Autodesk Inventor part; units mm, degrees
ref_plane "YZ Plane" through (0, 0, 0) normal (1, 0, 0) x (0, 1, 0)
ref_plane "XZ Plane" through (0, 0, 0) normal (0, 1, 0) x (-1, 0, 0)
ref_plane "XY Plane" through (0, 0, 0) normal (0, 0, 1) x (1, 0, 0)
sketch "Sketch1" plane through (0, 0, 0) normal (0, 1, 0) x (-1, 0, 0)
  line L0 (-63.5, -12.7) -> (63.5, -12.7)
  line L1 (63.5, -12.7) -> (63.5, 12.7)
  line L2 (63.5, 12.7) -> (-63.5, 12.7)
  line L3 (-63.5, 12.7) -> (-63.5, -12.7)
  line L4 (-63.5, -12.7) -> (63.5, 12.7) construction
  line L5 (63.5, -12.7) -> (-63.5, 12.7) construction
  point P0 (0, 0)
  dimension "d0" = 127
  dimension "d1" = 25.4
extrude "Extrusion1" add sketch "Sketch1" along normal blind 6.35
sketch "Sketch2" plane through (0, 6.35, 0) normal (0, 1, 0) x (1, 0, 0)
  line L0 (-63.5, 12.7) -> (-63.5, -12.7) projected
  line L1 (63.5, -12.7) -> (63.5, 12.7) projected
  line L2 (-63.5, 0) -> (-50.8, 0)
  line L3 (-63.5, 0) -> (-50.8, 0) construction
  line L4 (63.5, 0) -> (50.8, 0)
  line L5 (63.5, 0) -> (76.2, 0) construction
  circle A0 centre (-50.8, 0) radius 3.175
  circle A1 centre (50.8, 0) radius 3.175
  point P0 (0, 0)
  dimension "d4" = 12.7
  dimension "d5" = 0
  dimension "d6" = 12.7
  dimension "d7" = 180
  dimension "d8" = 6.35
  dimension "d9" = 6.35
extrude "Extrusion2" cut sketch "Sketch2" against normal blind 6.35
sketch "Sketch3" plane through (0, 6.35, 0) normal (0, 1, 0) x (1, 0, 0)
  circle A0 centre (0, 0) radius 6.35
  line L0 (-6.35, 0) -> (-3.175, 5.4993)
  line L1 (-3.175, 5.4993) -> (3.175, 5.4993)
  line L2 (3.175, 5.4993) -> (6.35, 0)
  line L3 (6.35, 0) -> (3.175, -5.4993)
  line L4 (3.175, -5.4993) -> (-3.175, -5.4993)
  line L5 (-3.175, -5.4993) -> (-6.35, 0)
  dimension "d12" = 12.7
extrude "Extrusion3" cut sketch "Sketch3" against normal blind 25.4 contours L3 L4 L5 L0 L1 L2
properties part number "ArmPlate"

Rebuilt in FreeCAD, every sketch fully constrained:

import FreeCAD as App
import Part
import Sketcher
from FreeCAD import Vector
Q = App.Units.Quantity


def add_polygon(sketch, points):
    """Adds a closed chain of lines whose ends are joined by coincident constraints."""
    first, n = sketch.GeometryCount, len(points)
    for a, b in zip(points, points[1:] + points[:1]):
        sketch.addGeometry(Part.LineSegment(App.Vector(*a, 0), App.Vector(*b, 0)), False)
    for i in range(n):
        sketch.addConstraint(Sketcher.Constraint("Coincident", first + i, 2, first + (i + 1) % n, 1))

doc = App.newDocument("Part")
params = doc.addObject("Spreadsheet::Sheet", "Params")
for row, (alias, value) in enumerate([
    ("sketch1_width", "5 in"),
    ("sketch1_height", "1 in"),
    ("pad1_length", "0.25 in"),
    ("sketch2_diameter", "0.25 in"),
    ("pocket1_length", "0.25 in"),
    ("sketch3_width", "0.25 in"),
    ("pocket2_length", "1 in"),
], start=1):
    params.set(f"A{row}", alias)
    params.set(f"B{row}", "=" + value)
    params.setAlias(f"B{row}", alias)

body = doc.addObject("PartDesign::Body", "Body")

# Sketch on XZ plane
sketch1 = doc.addObject("Sketcher::SketchObject", "Sketch")
body.addObject(sketch1)
sketch1.AttachmentSupport = (doc.XZ_Plane, [""])
sketch1.MapMode = "FlatFace"
add_polygon(sketch1, [(64, 13), (64, -13), (-64, -13), (-64, 13)])  # lines 0-3
sketch1.addConstraint([
    Sketcher.Constraint("Vertical", 0),
    Sketcher.Constraint("Horizontal", 1),
    Sketcher.Constraint("Vertical", 2),
    Sketcher.Constraint("Horizontal", 3),
    Sketcher.Constraint("Symmetric", 0, 2, 2, 2, -1, 1),
    Sketcher.Constraint("DistanceX", 1, 2, 1, 1, Q("5 in")),
    Sketcher.Constraint("DistanceY", 0, 2, 0, 1, Q("1 in")),
])
sketch1.setExpression("Constraints[9]", "Params.sketch1_width")
sketch1.setExpression("Constraints[10]", "Params.sketch1_height")
pad1 = doc.addObject("PartDesign::Pad", "Pad")
body.addObject(pad1)
pad1.Profile = sketch1
pad1.setExpression("Length", "Params.pad1_length")
pad1.Reversed = True

# Sketch on XZ plane
sketch2 = doc.addObject("Sketcher::SketchObject", "Sketch001")
body.addObject(sketch2)
sketch2.AttachmentSupport = (doc.XZ_Plane, [""])
sketch2.MapMode = "FlatFace"
sketch2.AttachmentOffset = App.Placement(Vector(0, 0, -0.25 * 25.4), App.Rotation())
sketch2.addGeometry([
    Part.Circle(Vector(-50.8, 0, 0), Vector(0, 0, 1), 3.2),
    Part.Circle(Vector(50.8, 0, 0), Vector(0, 0, 1), 3.2),
], False)
sketch2.addConstraint([
    Sketcher.Constraint("Equal", 0, 1),
    Sketcher.Constraint("Symmetric", 0, 3, 1, 3, -1, 1),
    Sketcher.Constraint("PointOnObject", 0, 3, -1),
    Sketcher.Constraint("Diameter", 0, Q("0.25 in")),
    Sketcher.Constraint("DistanceX", 0, 3, -1, 1, Q("2 in")),
])
sketch2.setExpression("Constraints[3]", "Params.sketch2_diameter")
pocket1 = doc.addObject("PartDesign::Pocket", "Pocket")
body.addObject(pocket1)
pocket1.Profile = sketch2
pocket1.setExpression("Length", "Params.pocket1_length")
pocket1.Reversed = True

# Sketch on XZ plane
sketch3 = doc.addObject("Sketcher::SketchObject", "Sketch002")
body.addObject(sketch3)
sketch3.AttachmentSupport = (doc.XZ_Plane, [""])
sketch3.MapMode = "FlatFace"
sketch3.AttachmentOffset = App.Placement(Vector(0, 0, -0.25 * 25.4), App.Rotation())
add_polygon(sketch3, [(3, 5), (6, 0), (3, -5), (-3, -5), (-6, 0), (-3, 5)])  # lines 0-5
sketch3.addConstraint([
    Sketcher.Constraint("Horizontal", 2),
    Sketcher.Constraint("Horizontal", 5),
    Sketcher.Constraint("Symmetric", 0, 2, 3, 2, -1, 1),
    Sketcher.Constraint("Symmetric", 1, 2, 4, 2, -1, 1),
    Sketcher.Constraint("PointOnObject", 0, 2, -1),
    Sketcher.Constraint("Parallel", 0, 3),
    Sketcher.Constraint("Vertical", 2, 2, 4, 2),
    Sketcher.Constraint("DistanceX", 3, 2, 0, 2, Q("0.5 in")),
    Sketcher.Constraint("Angle", 0, Q("-60.0002 deg")),
    Sketcher.Constraint("DistanceX", 2, 2, 2, 1, Q("0.25 in")),
])
sketch3.setExpression("Constraints[15]", "Params.sketch3_width")
pocket2 = doc.addObject("PartDesign::Pocket", "Pocket001")
body.addObject(pocket2)
pocket2.Profile = sketch3
pocket2.setExpression("Length", "Params.pocket2_length")
pocket2.Reversed = True

doc.recompute()
